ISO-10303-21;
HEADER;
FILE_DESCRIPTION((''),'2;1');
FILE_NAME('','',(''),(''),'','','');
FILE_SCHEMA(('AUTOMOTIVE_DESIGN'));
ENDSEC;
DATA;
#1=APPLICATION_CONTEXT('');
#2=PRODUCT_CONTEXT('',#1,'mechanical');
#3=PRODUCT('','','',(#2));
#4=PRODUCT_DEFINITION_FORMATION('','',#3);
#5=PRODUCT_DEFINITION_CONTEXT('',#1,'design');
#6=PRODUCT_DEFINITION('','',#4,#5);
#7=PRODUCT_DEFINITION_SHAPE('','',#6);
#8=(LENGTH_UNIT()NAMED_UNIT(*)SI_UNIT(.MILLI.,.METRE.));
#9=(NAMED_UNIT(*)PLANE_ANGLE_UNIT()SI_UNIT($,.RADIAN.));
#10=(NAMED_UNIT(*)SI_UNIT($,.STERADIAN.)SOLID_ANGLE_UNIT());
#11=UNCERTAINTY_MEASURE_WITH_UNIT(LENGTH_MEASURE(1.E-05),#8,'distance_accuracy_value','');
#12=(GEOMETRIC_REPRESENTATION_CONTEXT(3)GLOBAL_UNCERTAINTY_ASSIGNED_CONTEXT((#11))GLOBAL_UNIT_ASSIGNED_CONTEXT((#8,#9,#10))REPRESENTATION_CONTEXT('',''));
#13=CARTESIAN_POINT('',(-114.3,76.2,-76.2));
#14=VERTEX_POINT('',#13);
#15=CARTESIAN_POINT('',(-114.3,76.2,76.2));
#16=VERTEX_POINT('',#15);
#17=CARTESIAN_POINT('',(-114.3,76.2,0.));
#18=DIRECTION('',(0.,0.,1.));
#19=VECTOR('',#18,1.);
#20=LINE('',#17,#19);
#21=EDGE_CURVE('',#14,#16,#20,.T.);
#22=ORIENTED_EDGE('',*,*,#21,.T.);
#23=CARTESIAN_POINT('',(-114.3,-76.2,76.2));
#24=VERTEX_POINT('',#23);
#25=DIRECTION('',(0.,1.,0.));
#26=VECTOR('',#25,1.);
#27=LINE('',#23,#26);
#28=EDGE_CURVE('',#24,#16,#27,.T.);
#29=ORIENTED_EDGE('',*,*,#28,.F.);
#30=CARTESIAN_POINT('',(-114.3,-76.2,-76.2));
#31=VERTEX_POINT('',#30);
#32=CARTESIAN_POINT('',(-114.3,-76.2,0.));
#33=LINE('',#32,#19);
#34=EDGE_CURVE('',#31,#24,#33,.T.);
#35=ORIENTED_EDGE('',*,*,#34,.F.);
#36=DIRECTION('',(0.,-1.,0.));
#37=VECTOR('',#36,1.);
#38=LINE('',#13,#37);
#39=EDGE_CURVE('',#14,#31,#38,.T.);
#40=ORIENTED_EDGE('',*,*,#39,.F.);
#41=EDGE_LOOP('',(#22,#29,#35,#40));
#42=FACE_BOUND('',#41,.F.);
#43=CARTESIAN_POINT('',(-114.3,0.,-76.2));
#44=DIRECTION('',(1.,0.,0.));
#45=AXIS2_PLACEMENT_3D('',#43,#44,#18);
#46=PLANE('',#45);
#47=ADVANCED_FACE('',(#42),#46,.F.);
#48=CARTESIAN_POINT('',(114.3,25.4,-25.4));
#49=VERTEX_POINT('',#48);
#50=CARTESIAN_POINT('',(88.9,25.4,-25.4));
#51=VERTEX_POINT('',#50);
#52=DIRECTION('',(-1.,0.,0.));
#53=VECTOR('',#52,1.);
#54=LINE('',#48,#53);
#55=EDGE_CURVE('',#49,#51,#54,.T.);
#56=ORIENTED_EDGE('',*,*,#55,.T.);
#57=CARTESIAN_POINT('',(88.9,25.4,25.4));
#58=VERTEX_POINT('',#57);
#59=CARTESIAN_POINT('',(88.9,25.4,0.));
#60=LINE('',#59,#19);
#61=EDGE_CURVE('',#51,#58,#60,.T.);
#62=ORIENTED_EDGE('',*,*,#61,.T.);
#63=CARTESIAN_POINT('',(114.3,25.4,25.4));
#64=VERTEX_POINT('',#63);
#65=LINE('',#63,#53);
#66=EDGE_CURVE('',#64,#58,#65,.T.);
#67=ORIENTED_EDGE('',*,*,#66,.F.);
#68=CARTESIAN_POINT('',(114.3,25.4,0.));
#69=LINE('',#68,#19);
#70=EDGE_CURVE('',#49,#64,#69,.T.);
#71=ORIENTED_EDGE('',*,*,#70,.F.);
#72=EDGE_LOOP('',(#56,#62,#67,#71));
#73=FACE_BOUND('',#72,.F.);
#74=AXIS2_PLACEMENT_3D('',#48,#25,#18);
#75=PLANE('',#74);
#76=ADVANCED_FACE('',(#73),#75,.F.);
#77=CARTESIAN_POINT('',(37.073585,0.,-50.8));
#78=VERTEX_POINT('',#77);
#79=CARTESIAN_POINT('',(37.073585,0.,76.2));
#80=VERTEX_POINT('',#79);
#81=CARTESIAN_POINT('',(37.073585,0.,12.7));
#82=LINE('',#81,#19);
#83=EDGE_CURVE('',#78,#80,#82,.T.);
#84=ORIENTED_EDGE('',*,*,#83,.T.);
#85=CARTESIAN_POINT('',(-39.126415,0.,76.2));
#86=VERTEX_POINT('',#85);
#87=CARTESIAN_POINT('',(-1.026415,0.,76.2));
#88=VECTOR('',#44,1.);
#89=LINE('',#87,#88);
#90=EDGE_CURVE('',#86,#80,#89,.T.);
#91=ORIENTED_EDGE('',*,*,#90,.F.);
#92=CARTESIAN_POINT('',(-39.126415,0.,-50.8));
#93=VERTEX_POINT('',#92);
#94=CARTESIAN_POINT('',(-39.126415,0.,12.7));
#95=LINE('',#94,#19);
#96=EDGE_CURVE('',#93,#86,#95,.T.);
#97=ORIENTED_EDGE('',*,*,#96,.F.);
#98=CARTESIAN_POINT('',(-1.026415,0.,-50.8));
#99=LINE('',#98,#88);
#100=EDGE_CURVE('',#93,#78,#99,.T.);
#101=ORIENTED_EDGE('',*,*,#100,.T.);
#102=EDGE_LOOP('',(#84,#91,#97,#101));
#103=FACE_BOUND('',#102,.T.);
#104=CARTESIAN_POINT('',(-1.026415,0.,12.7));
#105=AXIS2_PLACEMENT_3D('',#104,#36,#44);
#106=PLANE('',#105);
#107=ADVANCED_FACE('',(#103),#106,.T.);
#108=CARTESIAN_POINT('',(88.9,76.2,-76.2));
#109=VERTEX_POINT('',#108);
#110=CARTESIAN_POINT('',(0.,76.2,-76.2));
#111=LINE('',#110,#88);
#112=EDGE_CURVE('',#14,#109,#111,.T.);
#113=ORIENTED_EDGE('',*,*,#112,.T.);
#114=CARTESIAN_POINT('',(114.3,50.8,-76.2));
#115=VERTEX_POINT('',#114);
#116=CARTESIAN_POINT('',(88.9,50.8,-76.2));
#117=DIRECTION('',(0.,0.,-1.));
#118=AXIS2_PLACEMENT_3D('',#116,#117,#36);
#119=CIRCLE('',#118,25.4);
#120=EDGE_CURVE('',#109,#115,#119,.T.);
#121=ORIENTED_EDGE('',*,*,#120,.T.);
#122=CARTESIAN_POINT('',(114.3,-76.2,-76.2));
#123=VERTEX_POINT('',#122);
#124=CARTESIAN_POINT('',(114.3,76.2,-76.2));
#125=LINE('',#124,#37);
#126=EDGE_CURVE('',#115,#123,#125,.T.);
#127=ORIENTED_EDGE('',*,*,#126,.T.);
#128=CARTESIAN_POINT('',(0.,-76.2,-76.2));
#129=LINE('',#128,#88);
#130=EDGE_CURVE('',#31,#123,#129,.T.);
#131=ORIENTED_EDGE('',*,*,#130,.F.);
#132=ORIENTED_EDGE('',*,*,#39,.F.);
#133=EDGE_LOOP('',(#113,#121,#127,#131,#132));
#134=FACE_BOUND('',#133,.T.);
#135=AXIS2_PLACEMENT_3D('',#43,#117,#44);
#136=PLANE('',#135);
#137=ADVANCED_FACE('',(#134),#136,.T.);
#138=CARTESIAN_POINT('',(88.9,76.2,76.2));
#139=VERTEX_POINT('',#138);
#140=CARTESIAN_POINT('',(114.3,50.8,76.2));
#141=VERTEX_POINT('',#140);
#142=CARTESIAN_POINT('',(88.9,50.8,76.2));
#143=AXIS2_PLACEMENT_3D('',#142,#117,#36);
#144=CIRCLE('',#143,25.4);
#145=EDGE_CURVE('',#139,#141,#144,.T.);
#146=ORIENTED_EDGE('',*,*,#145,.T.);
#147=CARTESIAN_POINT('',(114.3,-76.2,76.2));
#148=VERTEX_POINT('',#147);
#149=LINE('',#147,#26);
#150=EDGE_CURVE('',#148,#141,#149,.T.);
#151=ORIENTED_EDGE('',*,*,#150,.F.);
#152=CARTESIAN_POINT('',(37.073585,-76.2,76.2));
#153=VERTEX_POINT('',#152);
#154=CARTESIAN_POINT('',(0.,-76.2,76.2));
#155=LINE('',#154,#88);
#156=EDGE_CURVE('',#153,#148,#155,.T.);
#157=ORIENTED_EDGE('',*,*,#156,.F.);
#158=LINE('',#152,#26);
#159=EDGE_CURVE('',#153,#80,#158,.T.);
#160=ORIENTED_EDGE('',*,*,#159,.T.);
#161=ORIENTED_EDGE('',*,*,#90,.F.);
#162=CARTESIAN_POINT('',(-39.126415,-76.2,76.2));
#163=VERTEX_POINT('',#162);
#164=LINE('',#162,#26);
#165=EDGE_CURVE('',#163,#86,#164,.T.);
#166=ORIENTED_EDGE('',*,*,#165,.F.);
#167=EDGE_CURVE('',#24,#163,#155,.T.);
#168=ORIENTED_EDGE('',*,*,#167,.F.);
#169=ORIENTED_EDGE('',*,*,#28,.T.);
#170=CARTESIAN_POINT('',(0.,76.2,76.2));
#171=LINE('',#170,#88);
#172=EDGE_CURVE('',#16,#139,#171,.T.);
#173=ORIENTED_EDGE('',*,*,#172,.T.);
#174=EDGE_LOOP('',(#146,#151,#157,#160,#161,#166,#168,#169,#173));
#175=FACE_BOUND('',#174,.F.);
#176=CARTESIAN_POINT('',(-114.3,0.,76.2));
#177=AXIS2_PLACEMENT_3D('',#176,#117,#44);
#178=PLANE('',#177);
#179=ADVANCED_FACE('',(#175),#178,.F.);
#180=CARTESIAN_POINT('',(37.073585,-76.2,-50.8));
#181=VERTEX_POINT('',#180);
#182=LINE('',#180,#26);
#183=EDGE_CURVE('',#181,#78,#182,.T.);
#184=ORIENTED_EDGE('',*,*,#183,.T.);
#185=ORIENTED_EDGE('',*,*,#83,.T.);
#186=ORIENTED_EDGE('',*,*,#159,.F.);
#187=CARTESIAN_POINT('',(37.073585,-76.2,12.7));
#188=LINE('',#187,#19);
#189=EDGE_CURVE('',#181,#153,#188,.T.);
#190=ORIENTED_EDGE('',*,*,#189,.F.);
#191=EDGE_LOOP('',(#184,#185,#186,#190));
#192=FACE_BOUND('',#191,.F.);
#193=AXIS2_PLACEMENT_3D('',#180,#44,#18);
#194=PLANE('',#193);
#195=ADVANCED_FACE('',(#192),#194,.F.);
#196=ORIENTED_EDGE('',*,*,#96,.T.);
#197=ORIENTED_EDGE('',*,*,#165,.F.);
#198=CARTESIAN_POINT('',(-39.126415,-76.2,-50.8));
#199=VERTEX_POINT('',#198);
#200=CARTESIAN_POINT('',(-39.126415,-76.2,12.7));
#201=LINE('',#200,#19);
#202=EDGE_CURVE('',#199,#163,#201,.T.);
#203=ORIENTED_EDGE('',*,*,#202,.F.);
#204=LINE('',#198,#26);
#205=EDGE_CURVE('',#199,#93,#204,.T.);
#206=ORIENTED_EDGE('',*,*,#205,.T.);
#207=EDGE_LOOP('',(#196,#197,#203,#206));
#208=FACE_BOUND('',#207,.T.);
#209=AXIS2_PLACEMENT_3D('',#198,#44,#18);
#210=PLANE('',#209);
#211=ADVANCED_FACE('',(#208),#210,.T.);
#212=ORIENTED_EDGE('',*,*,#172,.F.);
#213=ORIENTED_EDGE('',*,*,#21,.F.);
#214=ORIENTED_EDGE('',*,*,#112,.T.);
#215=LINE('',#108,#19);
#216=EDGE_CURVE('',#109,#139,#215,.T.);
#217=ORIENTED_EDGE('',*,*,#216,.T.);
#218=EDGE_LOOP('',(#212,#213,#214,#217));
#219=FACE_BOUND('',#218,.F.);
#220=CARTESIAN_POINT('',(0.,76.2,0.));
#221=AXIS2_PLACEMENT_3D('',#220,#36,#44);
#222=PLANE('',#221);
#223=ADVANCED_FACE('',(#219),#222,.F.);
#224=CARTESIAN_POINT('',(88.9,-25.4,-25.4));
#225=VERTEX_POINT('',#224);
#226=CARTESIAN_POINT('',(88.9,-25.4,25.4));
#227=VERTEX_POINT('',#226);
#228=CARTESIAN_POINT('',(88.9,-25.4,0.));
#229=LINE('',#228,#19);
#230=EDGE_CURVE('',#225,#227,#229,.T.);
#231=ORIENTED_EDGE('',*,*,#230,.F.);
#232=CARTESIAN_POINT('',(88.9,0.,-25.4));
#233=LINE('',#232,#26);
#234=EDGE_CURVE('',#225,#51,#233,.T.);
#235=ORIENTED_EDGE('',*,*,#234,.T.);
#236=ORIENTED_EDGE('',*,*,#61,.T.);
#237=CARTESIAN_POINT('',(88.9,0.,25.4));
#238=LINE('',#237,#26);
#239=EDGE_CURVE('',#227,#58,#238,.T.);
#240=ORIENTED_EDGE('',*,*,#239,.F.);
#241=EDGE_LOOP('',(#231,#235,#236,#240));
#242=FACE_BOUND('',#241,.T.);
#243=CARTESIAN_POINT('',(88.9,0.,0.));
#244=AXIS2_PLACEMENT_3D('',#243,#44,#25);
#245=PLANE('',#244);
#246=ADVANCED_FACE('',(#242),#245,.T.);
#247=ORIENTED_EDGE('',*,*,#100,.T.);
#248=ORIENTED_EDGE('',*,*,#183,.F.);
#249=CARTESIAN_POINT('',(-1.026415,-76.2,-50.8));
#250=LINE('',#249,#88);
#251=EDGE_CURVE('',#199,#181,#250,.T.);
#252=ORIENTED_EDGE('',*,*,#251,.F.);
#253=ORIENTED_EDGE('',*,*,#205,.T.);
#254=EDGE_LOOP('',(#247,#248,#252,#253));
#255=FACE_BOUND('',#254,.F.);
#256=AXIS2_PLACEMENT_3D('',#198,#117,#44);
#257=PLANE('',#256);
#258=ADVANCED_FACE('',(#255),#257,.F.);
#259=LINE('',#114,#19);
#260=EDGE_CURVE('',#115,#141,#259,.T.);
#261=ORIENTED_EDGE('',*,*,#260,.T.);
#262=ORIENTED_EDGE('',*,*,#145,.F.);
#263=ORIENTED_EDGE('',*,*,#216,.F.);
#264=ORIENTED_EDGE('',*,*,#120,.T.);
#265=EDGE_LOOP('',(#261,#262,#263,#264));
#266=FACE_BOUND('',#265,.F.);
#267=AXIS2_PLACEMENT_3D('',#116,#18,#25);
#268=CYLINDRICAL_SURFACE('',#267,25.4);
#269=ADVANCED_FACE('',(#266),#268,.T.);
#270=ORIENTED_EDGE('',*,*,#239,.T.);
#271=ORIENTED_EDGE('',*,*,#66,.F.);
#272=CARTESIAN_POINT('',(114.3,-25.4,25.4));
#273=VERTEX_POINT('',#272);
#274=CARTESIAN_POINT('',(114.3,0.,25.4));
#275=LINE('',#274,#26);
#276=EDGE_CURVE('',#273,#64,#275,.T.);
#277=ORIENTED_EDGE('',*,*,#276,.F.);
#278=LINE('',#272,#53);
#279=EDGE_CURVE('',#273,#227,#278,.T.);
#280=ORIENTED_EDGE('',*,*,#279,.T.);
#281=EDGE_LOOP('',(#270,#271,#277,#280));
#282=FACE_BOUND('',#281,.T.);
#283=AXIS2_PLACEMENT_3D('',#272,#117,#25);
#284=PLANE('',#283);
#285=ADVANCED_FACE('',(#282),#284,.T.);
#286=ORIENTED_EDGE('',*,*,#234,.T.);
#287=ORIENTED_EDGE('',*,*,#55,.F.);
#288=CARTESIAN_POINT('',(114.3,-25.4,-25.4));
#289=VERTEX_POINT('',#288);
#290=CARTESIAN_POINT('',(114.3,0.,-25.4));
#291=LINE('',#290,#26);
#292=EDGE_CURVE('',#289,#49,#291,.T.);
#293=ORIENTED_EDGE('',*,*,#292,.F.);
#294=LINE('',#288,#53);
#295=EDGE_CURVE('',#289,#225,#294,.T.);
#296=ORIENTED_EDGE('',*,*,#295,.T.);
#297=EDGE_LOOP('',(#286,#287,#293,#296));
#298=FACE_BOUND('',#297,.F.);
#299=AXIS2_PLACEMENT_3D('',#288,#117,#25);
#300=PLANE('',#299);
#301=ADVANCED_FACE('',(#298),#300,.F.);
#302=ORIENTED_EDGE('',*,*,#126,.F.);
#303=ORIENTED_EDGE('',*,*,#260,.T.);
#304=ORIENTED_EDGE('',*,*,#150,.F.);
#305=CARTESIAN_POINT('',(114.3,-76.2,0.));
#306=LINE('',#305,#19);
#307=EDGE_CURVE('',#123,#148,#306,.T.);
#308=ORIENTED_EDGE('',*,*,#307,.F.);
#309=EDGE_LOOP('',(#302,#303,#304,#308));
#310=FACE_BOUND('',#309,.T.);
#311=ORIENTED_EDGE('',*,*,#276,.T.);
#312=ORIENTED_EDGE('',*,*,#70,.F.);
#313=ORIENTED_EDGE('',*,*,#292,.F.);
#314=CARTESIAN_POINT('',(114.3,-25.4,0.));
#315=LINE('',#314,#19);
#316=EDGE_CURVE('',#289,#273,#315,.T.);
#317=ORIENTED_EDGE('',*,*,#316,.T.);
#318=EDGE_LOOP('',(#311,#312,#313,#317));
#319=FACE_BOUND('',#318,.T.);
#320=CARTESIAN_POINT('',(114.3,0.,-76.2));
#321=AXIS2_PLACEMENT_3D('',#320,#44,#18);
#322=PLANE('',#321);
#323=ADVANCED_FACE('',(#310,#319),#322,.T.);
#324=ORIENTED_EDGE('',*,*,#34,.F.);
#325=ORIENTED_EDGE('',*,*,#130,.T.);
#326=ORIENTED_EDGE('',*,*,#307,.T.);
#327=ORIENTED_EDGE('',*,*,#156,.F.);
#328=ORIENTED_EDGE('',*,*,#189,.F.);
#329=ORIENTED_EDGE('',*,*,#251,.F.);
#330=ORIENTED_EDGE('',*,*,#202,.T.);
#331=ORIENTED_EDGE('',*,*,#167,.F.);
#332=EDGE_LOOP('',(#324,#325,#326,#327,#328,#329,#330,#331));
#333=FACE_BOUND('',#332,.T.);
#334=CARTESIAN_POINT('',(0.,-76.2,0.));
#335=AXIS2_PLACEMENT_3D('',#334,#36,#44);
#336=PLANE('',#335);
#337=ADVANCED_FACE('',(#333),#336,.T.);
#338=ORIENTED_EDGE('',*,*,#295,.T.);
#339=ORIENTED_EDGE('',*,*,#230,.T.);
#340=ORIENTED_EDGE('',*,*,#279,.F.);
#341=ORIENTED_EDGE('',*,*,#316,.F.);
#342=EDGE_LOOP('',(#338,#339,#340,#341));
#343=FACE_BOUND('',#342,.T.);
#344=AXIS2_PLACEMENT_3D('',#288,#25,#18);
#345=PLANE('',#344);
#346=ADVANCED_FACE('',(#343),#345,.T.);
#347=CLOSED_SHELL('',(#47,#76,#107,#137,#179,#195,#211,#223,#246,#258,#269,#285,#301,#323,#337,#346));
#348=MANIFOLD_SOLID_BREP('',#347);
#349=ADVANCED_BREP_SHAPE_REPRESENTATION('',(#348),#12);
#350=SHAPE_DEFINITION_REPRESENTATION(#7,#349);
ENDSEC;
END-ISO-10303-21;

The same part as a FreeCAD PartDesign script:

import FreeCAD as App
import Part
import Sketcher
from FreeCAD import Vector
Q = App.Units.Quantity


def edges_at(feature, points):
    """Names of the edges that pass closest to the given points."""
    edges = feature.Shape.Edges
    near = lambda p: min(range(len(edges)), key=lambda i: edges[i].distToShape(Part.Vertex(*p))[0])
    return sorted({f"Edge{near(p) + 1}" for p in points})


def add_polygon(sketch, points):
    """Adds a closed chain of lines whose ends are joined by coincident constraints."""
    first, n = sketch.GeometryCount, len(points)
    for a, b in zip(points, points[1:] + points[:1]):
        sketch.addGeometry(Part.LineSegment(App.Vector(*a, 0), App.Vector(*b, 0)), False)
    for i in range(n):
        sketch.addConstraint(Sketcher.Constraint("Coincident", first + i, 2, first + (i + 1) % n, 1))

doc = App.newDocument("Part")
body = doc.addObject("PartDesign::Body", "Body")

# Sketch on XZ plane
sketch1 = doc.addObject("Sketcher::SketchObject", "Sketch")
body.addObject(sketch1)
sketch1.AttachmentSupport = (doc.XZ_Plane, [""])
sketch1.MapMode = "FlatFace"
add_polygon(sketch1, [(-114.3, 76.2), (-114.3, -76.2), (114.3, -76.2), (114.3, 76.2)])  # lines 0-3
sketch1.addConstraint([
    Sketcher.Constraint("Vertical", 0),
    Sketcher.Constraint("Horizontal", 1),
    Sketcher.Constraint("Vertical", 2),
    Sketcher.Constraint("Horizontal", 3),
    Sketcher.Constraint("Symmetric", 0, 2, 2, 2, -1, 1),
    Sketcher.Constraint("DistanceX", 1, 1, 1, 2, Q("9 in")),
    Sketcher.Constraint("DistanceY", 0, 2, 0, 1, Q("6 in")),
])
pad1 = doc.addObject("PartDesign::Pad", "Pad")
body.addObject(pad1)
pad1.Profile = sketch1
pad1.Length = Q("6 in")
pad1.Midplane = True

# Sketch on XZ plane
sketch2 = doc.addObject("Sketcher::SketchObject", "Sketch001")
body.addObject(sketch2)
sketch2.AttachmentSupport = (doc.XZ_Plane, [""])
sketch2.MapMode = "FlatFace"
sketch2.AttachmentOffset = App.Placement(Vector(0, 0, 3 * 25.4), App.Rotation())
add_polygon(sketch2, [(-39.126415, 76.2), (-39.126415, -50.8), (37.073585, -50.8), (37.073585, 76.2)])  # lines 0-3
sketch2.addConstraint([
    Sketcher.Constraint("Vertical", 0),
    Sketcher.Constraint("Horizontal", 1),
    Sketcher.Constraint("Vertical", 2),
    Sketcher.Constraint("Horizontal", 3),
    Sketcher.Constraint("DistanceX", 1, 1, 1, 2, Q("3 in")),
    Sketcher.Constraint("DistanceY", 0, 2, 0, 1, Q("5 in")),
    Sketcher.Constraint("DistanceY", 0, 2, -1, 1, Q("2 in")),
    Sketcher.Constraint("DistanceX", 0, 2, -1, 1, 39.126415),
])
pocket1 = doc.addObject("PartDesign::Pocket", "Pocket")
body.addObject(pocket1)
pocket1.Profile = sketch2
pocket1.Length = Q("3 in")
doc.recompute()

fillet = doc.addObject("PartDesign::Fillet", "Fillet")
body.addObject(fillet)
fillet.Base = (pocket1, edges_at(pocket1, [(114.3, 76.2, 0)]))
fillet.Radius = Q("1 in")

# Sketch on YZ plane
sketch3 = doc.addObject("Sketcher::SketchObject", "Sketch002")
body.addObject(sketch3)
sketch3.AttachmentSupport = (doc.YZ_Plane, [""])
sketch3.MapMode = "FlatFace"
sketch3.AttachmentOffset = App.Placement(Vector(0, 0, 4.5 * 25.4), App.Rotation())
add_polygon(sketch3, [(-25.4, 25.4), (-25.4, -25.4), (25.4, -25.4), (25.4, 25.4)])  # lines 0-3
sketch3.addConstraint([
    Sketcher.Constraint("Vertical", 0),
    Sketcher.Constraint("Horizontal", 1),
    Sketcher.Constraint("Vertical", 2),
    Sketcher.Constraint("Horizontal", 3),
    Sketcher.Constraint("Symmetric", 0, 2, 2, 2, -1, 1),
    Sketcher.Constraint("Equal", 3, 0),
    Sketcher.Constraint("DistanceX", 1, 1, 1, 2, Q("2 in")),
])
pocket2 = doc.addObject("PartDesign::Pocket", "Pocket001")
body.addObject(pocket2)
pocket2.Profile = sketch3
pocket2.Length = Q("1 in")

doc.recompute()
